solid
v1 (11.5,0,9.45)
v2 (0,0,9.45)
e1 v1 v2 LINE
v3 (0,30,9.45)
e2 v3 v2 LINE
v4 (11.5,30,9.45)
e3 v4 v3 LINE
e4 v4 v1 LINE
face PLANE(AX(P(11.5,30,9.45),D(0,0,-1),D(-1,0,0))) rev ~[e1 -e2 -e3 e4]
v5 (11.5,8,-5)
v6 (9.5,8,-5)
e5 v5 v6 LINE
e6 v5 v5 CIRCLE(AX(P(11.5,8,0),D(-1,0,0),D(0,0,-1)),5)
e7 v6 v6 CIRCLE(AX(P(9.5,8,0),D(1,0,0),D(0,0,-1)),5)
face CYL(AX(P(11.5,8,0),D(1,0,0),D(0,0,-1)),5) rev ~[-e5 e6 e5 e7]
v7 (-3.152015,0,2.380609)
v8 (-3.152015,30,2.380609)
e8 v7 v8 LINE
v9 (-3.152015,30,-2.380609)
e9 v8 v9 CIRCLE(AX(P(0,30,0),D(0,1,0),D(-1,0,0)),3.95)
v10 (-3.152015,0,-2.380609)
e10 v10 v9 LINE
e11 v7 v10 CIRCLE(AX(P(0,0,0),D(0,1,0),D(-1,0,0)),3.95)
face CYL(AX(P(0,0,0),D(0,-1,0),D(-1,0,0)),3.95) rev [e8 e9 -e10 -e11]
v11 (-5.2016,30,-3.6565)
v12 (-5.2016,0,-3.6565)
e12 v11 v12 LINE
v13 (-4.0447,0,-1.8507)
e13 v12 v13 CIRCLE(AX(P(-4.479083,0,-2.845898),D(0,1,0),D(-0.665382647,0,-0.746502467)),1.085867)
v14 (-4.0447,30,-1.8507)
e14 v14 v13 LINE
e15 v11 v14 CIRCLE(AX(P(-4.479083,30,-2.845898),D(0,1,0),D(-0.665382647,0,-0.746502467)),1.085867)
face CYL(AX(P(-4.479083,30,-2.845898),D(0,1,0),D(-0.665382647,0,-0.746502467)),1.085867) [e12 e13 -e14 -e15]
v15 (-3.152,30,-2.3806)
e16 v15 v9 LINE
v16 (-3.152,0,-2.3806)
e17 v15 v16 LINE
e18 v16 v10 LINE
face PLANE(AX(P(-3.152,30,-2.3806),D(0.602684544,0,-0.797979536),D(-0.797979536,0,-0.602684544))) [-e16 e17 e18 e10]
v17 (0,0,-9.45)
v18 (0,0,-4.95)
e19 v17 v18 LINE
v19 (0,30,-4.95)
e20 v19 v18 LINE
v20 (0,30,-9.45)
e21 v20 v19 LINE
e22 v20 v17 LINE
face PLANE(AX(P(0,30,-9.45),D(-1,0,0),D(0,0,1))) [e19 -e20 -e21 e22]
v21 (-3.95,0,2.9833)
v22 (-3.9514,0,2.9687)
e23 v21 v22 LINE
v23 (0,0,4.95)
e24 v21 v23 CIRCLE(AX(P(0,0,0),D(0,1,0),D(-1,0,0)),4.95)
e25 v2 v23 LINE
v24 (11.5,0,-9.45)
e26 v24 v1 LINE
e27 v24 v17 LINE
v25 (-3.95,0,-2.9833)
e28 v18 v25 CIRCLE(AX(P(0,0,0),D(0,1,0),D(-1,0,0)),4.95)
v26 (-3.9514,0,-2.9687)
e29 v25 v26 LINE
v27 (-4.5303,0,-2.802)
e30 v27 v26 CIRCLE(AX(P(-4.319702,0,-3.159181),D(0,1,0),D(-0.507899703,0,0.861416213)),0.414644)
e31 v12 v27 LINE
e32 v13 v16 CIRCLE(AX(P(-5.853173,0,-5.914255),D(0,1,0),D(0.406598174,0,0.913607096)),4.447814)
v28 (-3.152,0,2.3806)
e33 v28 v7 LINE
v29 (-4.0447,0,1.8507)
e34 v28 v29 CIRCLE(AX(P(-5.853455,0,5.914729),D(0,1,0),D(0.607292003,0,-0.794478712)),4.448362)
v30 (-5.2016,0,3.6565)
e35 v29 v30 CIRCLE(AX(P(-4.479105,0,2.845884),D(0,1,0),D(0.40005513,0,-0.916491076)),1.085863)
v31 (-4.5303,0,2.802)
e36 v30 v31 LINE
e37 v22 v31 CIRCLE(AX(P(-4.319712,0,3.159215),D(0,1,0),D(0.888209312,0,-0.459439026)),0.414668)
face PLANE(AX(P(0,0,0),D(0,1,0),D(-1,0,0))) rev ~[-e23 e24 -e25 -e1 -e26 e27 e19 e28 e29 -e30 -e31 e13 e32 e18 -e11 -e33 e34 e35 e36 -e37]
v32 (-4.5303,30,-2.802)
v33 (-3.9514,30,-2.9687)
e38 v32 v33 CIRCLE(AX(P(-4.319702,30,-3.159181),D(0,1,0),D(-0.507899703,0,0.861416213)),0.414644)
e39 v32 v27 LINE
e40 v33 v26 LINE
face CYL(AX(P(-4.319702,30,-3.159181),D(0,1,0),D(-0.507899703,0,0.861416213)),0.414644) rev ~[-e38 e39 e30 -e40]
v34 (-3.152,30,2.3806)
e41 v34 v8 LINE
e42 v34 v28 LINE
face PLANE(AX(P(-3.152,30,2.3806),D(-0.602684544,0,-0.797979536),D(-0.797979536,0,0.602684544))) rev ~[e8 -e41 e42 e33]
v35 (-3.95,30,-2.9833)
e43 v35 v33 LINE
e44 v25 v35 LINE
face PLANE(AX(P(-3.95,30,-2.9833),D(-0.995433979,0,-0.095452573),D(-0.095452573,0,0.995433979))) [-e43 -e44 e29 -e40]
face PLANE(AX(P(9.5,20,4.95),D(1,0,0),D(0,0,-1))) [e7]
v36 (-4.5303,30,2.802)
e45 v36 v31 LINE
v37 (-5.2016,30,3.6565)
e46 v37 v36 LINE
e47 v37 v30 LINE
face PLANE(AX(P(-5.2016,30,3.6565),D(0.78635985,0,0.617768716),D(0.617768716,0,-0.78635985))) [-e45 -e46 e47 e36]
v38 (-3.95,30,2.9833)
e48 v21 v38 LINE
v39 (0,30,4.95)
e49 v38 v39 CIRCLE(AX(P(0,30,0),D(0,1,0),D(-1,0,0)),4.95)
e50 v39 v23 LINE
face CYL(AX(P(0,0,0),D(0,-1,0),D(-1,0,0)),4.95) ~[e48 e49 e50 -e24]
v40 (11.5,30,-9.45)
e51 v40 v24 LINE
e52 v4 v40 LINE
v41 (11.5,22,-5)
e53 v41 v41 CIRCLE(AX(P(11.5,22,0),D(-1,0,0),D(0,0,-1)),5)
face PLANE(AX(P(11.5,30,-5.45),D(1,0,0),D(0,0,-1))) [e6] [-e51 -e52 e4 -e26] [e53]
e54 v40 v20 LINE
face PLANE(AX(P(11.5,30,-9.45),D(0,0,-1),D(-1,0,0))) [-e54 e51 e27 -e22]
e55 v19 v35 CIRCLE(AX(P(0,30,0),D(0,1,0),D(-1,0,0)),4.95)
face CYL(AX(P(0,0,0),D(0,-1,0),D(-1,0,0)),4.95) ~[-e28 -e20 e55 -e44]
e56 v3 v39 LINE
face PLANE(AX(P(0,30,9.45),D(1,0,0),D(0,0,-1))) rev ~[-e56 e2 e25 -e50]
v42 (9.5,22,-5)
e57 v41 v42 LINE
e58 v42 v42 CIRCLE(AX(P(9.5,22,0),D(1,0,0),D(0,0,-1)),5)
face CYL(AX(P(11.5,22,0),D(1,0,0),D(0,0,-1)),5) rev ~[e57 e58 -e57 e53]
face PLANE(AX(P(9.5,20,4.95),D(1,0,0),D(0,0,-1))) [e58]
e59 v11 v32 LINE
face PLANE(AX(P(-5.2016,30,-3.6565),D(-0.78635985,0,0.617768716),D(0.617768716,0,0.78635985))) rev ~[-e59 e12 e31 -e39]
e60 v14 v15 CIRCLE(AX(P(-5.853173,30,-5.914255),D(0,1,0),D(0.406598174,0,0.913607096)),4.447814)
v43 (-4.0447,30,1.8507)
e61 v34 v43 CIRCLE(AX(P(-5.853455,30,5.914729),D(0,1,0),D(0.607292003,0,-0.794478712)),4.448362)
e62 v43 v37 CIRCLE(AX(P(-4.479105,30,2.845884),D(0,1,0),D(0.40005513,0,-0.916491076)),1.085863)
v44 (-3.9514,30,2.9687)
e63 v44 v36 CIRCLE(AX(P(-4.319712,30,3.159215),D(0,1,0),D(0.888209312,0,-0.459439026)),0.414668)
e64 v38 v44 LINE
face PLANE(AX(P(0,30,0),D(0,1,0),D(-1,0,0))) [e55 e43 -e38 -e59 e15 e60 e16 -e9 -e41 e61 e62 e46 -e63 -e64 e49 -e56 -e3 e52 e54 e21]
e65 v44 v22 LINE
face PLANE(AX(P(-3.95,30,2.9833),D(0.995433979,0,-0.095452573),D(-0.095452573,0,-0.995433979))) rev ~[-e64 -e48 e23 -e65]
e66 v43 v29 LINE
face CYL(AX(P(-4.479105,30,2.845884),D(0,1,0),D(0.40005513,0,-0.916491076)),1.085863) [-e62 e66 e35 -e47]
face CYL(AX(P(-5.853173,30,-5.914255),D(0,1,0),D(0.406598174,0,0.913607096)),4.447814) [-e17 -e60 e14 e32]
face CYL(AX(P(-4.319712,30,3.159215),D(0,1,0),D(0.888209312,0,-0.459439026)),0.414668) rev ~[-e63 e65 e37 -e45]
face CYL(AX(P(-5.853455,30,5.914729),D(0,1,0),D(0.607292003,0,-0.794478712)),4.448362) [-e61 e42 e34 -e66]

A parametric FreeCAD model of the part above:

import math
import FreeCAD as App
import Part
import Sketcher
from FreeCAD import Vector
Q = App.Units.Quantity

doc = App.newDocument("Part")
body = doc.addObject("PartDesign::Body", "Body")

sketch1 = doc.addObject("Sketcher::SketchObject", "Sketch")
body.addObject(sketch1)
sketch1.AttachmentSupport = (doc.XZ_Plane, [""])
sketch1.MapMode = "FlatFace"
sketch1.addGeometry(Part.ArcOfCircle(Part.Circle(Vector(0, 0, 0), Vector(0, 0, 1), 4), math.radians(-143), math.radians(143)), False)
sketch1.addGeometry(Part.LineSegment(Vector(-3.2, 2.4, 0), Vector(-4, 3, 0)), False)
sketch1.addGeometry(Part.ArcOfCircle(Part.Circle(Vector(0, 0, 0), Vector(0, 0, 1), 5), math.radians(-143), math.radians(143)), False)
sketch1.addGeometry(Part.LineSegment(Vector(-4, -3, 0), Vector(-3.2, -2.4, 0)), False)
sketch1.addConstraint(Sketcher.Constraint("Coincident", 0, 2, 1, 1))
sketch1.addConstraint(Sketcher.Constraint("Coincident", 1, 2, 2, 2))
sketch1.addConstraint(Sketcher.Constraint("Coincident", 2, 1, 3, 1))
sketch1.addConstraint(Sketcher.Constraint("Coincident", 3, 2, 0, 1))
sketch1.addConstraint(Sketcher.Constraint("Coincident", 0, 3, -1, 1))
sketch1.addConstraint(Sketcher.Constraint("Coincident", 2, 3, -1, 1))
sketch1.addConstraint(Sketcher.Constraint("Vertical", 1, 2, 2, 1))
sketch1.addConstraint(Sketcher.Constraint("Vertical", 0, 2, 3, 2))
sketch1.addConstraint(Sketcher.Constraint("Radius", 0, Q("3.95 mm")))
sketch1.addConstraint(Sketcher.Constraint("Radius", 2, Q("4.95 mm")))
sketch1.addConstraint(Sketcher.Constraint("DistanceX", 1, 2, -1, 1, Q("3.95 mm")))
sketch1.addConstraint(Sketcher.Constraint("DistanceX", 0, 2, -1, 1, Q("3.152 mm")))
pad1 = doc.addObject("PartDesign::Pad", "Pad")
body.addObject(pad1)
pad1.Profile = sketch1
pad1.Length = 30
pad1.Reversed = True

sketch2 = doc.addObject("Sketcher::SketchObject", "Sketch001")
body.addObject(sketch2)
sketch2.AttachmentSupport = (doc.XZ_Plane, [""])
sketch2.MapMode = "FlatFace"
sketch2.AttachmentOffset = App.Placement(Vector(0, 0, -30), App.Rotation())
sketch2.addGeometry(Part.ArcOfCircle(Part.Circle(Vector(-5.853, -5.915, 0), Vector(0, 0, 1), 4.448), math.radians(52.61), math.radians(66.01)), False)
sketch2.addGeometry(Part.LineSegment(Vector(-3.152, -2.381, 0), Vector(-3.95, -2.983, 0)), False)
sketch2.addGeometry(Part.LineSegment(Vector(-3.95, -2.983, 0), Vector(-3.951, -2.969, 0)), False)
sketch2.addGeometry(Part.ArcOfCircle(Part.Circle(Vector(-4.32, -3.159, 0), Vector(0, 0, 1), 0.415), math.radians(27), math.radians(121)), False)
sketch2.addGeometry(Part.LineSegment(Vector(-4.53, -2.802, 0), Vector(-5.202, -3.656, 0)), False)
sketch2.addGeometry(Part.ArcOfCircle(Part.Circle(Vector(-4.479, -2.846, 0), Vector(0, 0, 1), 1.086), math.radians(66), math.radians(228)), False)
sketch2.addGeometry(Part.LineSegment(Vector(-3.95, 2.983, 0), Vector(-3.152, 2.381, 0)), False)
sketch2.addGeometry(Part.ArcOfCircle(Part.Circle(Vector(-5.853, 5.915, 0), Vector(0, 0, 1), 4.448), math.radians(-66.01), math.radians(-52.61)), False)
sketch2.addGeometry(Part.ArcOfCircle(Part.Circle(Vector(-4.479, 2.846, 0), Vector(0, 0, 1), 1.086), math.radians(132), math.radians(294)), False)
sketch2.addGeometry(Part.LineSegment(Vector(-5.202, 3.656, 0), Vector(-4.53, 2.802, 0)), False)
sketch2.addGeometry(Part.ArcOfCircle(Part.Circle(Vector(-4.32, 3.159, 0), Vector(0, 0, 1), 0.415), math.radians(-121), math.radians(-27)), False)
sketch2.addGeometry(Part.LineSegment(Vector(-3.951, 2.969, 0), Vector(-3.95, 2.983, 0)), False)
sketch2.addConstraint(Sketcher.Constraint("Coincident", 0, 1, 1, 1))
sketch2.addConstraint(Sketcher.Constraint("Coincident", 1, 2, 2, 1))
sketch2.addConstraint(Sketcher.Constraint("Coincident", 2, 2, 3, 1))
sketch2.addConstraint(Sketcher.Constraint("Coincident", 3, 2, 4, 1))
sketch2.addConstraint(Sketcher.Constraint("Coincident", 4, 2, 5, 2))
sketch2.addConstraint(Sketcher.Constraint("Coincident", 5, 1, 0, 2))
sketch2.addConstraint(Sketcher.Constraint("Coincident", 6, 2, 7, 2))
sketch2.addConstraint(Sketcher.Constraint("Coincident", 7, 1, 8, 2))
sketch2.addConstraint(Sketcher.Constraint("Coincident", 8, 1, 9, 1))
sketch2.addConstraint(Sketcher.Constraint("Coincident", 9, 2, 10, 1))
sketch2.addConstraint(Sketcher.Constraint("Coincident", 10, 2, 11, 1))
sketch2.addConstraint(Sketcher.Constraint("Coincident", 11, 2, 6, 1))
sketch2.addConstraint(Sketcher.Constraint("Equal", 0, 7))
sketch2.addConstraint(Sketcher.Constraint("Equal", 5, 8))
sketch2.addConstraint(Sketcher.Constraint("Equal", 3, 10))
sketch2.addConstraint(Sketcher.Constraint("Symmetric", 0, 3, 7, 3, -1))
sketch2.addConstraint(Sketcher.Constraint("Symmetric", 5, 3, 8, 3, -1))
sketch2.addConstraint(Sketcher.Constraint("Symmetric", 3, 3, 10, 3, -1))
sketch2.addConstraint(Sketcher.Constraint("Symmetric", 1, 2, 11, 2, -1))
sketch2.addConstraint(Sketcher.Constraint("Vertical", 0, 1, 6, 2))
sketch2.addConstraint(Sketcher.Constraint("Vertical", 4, 2, 8, 1))
sketch2.addConstraint(Sketcher.Constraint("Vertical", 3, 2, 9, 2))
sketch2.addConstraint(Sketcher.Constraint("Vertical", 2, 2, 10, 2))
sketch2.addConstraint(Sketcher.Constraint("Distance", 1, Q("1 mm")))
sketch2.addConstraint(Sketcher.Constraint("Radius", 0, Q("4.448 mm")))
sketch2.addConstraint(Sketcher.Constraint("Radius", 3, Q("0.4147 mm")))
sketch2.addConstraint(Sketcher.Constraint("Radius", 5, Q("1.0859 mm")))
sketch2.addConstraint(Sketcher.Constraint("DistanceX", 1, 2, -1, 1, Q("3.95 mm")))
sketch2.addConstraint(Sketcher.Constraint("DistanceY", 7, 1, 6, 2, Q("0.53 mm")))
sketch2.addConstraint(Sketcher.Constraint("DistanceX", 5, 3, -1, 1, Q("4.479 mm")))
sketch2.addConstraint(Sketcher.Constraint("DistanceY", 5, 3, -1, 1, Q("2.846 mm")))
sketch2.addConstraint(Sketcher.Constraint("DistanceX", 0, 1, -1, 1, Q("3.152 mm")))
sketch2.addConstraint(Sketcher.Constraint("DistanceY", 3, 2, -1, 1, Q("2.802 mm")))
sketch2.addConstraint(Sketcher.Constraint("DistanceY", 0, 3, 7, 3, Q("11.829 mm")))
sketch2.addConstraint(Sketcher.Constraint("DistanceY", 3, 3, 8, 3, Q("6.005 mm")))
sketch2.addConstraint(Sketcher.Constraint("DistanceY", 2, 2, 0, 1, Q("0.588 mm")))
sketch2.addConstraint(Sketcher.Constraint("DistanceX", 0, 3, 2, 2, Q("1.902 mm")))
sketch2.addConstraint(Sketcher.Constraint("DistanceX", 4, 2, 3, 3, Q("0.882 mm")))
pad2 = doc.addObject("PartDesign::Pad", "Pad001")
body.addObject(pad2)
pad2.Profile = sketch2
pad2.Length = 30

sketch3 = doc.addObject("Sketcher::SketchObject", "Sketch002")
body.addObject(sketch3)
sketch3.AttachmentSupport = (doc.XZ_Plane, [""])
sketch3.MapMode = "FlatFace"
sketch3.AttachmentOffset = App.Placement(Vector(0, 0, -30), App.Rotation())
sketch3.addGeometry(Part.ArcOfCircle(Part.Circle(Vector(0, 0, 0), Vector(0, 0, 1), 5), math.radians(-90), math.radians(90)), False)
sketch3.addGeometry(Part.LineSegment(Vector(0, 5, 0), Vector(0, 9.4, 0)), False)
sketch3.addGeometry(Part.LineSegment(Vector(0, 9.4, 0), Vector(11.5, 9.4, 0)), False)
sketch3.addGeometry(Part.LineSegment(Vector(11.5, 9.4, 0), Vector(11.5, -9.4, 0)), False)
sketch3.addGeometry(Part.LineSegment(Vector(11.5, -9.4, 0), Vector(0, -9.4, 0)), False)
sketch3.addGeometry(Part.LineSegment(Vector(0, -9.4, 0), Vector(0, -5, 0)), False)
sketch3.addConstraint(Sketcher.Constraint("Coincident", 0, 2, 1, 1))
sketch3.addConstraint(Sketcher.Constraint("Coincident", 1, 2, 2, 1))
sketch3.addConstraint(Sketcher.Constraint("Coincident", 2, 2, 3, 1))
sketch3.addConstraint(Sketcher.Constraint("Coincident", 3, 2, 4, 1))
sketch3.addConstraint(Sketcher.Constraint("Coincident", 4, 2, 5, 1))
sketch3.addConstraint(Sketcher.Constraint("Coincident", 5, 2, 0, 1))
sketch3.addConstraint(Sketcher.Constraint("Vertical", 1))
sketch3.addConstraint(Sketcher.Constraint("Horizontal", 2))
sketch3.addConstraint(Sketcher.Constraint("Vertical", 3))
sketch3.addConstraint(Sketcher.Constraint("Horizontal", 4))
sketch3.addConstraint(Sketcher.Constraint("Vertical", 5))
sketch3.addConstraint(Sketcher.Constraint("Coincident", 0, 3, -1, 1))
sketch3.addConstraint(Sketcher.Constraint("Symmetric", 1, 2, 4, 2, -1, 1))
sketch3.addConstraint(Sketcher.Constraint("PointOnObject", 0, 2, -2))
sketch3.addConstraint(Sketcher.Constraint("DistanceX", 2, 1, 2, 2, Q("11.5 mm")))
sketch3.addConstraint(Sketcher.Constraint("DistanceY", 3, 2, 3, 1, Q("18.9 mm")))
sketch3.addConstraint(Sketcher.Constraint("Radius", 0, Q("4.95 mm")))
pad3 = doc.addObject("PartDesign::Pad", "Pad002")
body.addObject(pad3)
pad3.Profile = sketch3
pad3.Length = 30

sketch4 = doc.addObject("Sketcher::SketchObject", "Sketch003")
body.addObject(sketch4)
sketch4.AttachmentSupport = (doc.YZ_Plane, [""])
sketch4.MapMode = "FlatFace"
sketch4.AttachmentOffset = App.Placement(Vector(0, 0, 11.5), App.Rotation())
sketch4.addGeometry(Part.Circle(Vector(8, 0, 0), Vector(0, 0, 1), 5), False)
sketch4.addGeometry(Part.Circle(Vector(22, 0, 0), Vector(0, 0, 1), 5), False)
sketch4.addConstraint(Sketcher.Constraint("Equal", 0, 1))
sketch4.addConstraint(Sketcher.Constraint("PointOnObject", 0, 3, -1))
sketch4.addConstraint(Sketcher.Constraint("PointOnObject", 1, 3, -1))
sketch4.addConstraint(Sketcher.Constraint("Diameter", 0, Q("10 mm")))
sketch4.addConstraint(Sketcher.Constraint("DistanceX", -1, 1, 0, 3, Q("8 mm")))
sketch4.addConstraint(Sketcher.Constraint("DistanceX", -1, 1, 1, 3, Q("22 mm")))
pocket1 = doc.addObject("PartDesign::Pocket", "Pocket")
body.addObject(pocket1)
pocket1.Profile = sketch4
pocket1.Length = 2

doc.recompute()
